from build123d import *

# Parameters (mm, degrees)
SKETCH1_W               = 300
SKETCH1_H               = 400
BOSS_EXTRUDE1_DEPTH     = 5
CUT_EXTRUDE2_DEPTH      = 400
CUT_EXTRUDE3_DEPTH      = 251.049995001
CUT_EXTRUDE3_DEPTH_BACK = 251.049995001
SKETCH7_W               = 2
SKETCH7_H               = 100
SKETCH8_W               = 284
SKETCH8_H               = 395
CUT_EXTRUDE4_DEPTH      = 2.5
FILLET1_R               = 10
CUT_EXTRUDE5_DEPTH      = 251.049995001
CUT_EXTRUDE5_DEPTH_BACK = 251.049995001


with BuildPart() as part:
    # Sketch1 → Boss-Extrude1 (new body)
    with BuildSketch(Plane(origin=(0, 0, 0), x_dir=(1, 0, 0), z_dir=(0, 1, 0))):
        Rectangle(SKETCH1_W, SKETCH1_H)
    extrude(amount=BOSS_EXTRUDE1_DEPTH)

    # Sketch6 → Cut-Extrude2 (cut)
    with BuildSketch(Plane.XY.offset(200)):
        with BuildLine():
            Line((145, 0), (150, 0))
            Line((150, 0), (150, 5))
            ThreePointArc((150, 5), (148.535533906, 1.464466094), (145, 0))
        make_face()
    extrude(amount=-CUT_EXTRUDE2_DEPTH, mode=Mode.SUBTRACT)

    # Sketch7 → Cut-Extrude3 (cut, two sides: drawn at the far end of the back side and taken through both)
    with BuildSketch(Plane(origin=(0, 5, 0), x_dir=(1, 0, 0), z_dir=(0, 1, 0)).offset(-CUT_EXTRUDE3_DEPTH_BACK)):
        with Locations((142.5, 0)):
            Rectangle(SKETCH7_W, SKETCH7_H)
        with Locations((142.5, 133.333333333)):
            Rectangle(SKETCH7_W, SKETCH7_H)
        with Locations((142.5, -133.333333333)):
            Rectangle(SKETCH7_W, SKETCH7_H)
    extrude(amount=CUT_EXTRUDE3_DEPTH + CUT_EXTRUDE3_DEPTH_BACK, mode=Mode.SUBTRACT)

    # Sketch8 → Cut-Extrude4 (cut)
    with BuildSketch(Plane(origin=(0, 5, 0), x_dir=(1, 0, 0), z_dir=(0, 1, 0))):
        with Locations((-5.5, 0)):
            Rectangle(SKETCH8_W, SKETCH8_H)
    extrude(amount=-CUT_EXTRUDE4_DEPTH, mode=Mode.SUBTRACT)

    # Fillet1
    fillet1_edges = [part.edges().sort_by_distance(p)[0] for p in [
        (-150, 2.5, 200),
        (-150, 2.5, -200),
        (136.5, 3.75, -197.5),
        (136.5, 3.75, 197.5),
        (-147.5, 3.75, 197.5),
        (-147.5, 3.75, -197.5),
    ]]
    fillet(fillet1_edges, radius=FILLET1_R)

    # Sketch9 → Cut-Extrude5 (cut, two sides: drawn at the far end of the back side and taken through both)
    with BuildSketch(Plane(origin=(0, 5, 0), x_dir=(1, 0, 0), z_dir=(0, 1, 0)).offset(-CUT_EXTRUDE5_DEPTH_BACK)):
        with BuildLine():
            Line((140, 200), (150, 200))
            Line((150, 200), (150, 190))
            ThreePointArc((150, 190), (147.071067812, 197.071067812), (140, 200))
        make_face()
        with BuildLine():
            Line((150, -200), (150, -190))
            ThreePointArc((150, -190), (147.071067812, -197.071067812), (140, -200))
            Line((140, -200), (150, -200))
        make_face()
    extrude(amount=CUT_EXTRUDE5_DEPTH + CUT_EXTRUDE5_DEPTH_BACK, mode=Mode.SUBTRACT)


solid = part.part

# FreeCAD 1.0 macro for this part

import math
import FreeCAD as App
import Part
import Sketcher

V = App.Vector


def edges_at(feature, points):
    """Names of the edges that pass closest to the given points."""
    edges = feature.Shape.Edges
    near = lambda p: min(range(len(edges)), key=lambda i: edges[i].distToShape(Part.Vertex(*p))[0])
    return sorted({f"Edge{near(p) + 1}" for p in points})

doc = App.newDocument("Part")
params = doc.addObject("Spreadsheet::Sheet", "Params")
for row, (alias, value) in enumerate([
    ("sketch1_width", "300 mm"),
    ("sketch1_height", "400 mm"),
    ("pad1_length", "5 mm"),
    ("sketch2_radius", "5 mm"),
    ("pocket1_length", "400 mm"),
    ("sketch3_width", "2 mm"),
    ("sketch3_height", "100 mm"),
    ("sketch4_width", "284 mm"),
    ("sketch4_height", "395 mm"),
    ("pocket3_length", "2.5 mm"),
    ("fillet_radius", "10 mm"),
    ("sketch5_radius", "10 mm"),
], start=1):
    params.set(f"A{row}", alias)
    params.set(f"B{row}", "=" + value)
    params.setAlias(f"B{row}", alias)

body = doc.addObject("PartDesign::Body", "Body")

# Sketch on XZ plane
sketch1 = body.newObject("Sketcher::SketchObject", "Sketch")
sketch1.AttachmentSupport = (doc.getObject("XZ_Plane"), [""])
sketch1.MapMode = "FlatFace"
sketch1.addGeometry(Part.LineSegment(V(-150, -200, 0), V(-150, 200, 0)), False)
sketch1.addGeometry(Part.LineSegment(V(-150, 200, 0), V(150, 200, 0)), False)
sketch1.addGeometry(Part.LineSegment(V(150, 200, 0), V(150, -200, 0)), False)
sketch1.addGeometry(Part.LineSegment(V(150, -200, 0), V(-150, -200, 0)), False)
sketch1.addConstraint(Sketcher.Constraint("Coincident", 0, 2, 1, 1))
sketch1.addConstraint(Sketcher.Constraint("Coincident", 1, 2, 2, 1))
sketch1.addConstraint(Sketcher.Constraint("Coincident", 2, 2, 3, 1))
sketch1.addConstraint(Sketcher.Constraint("Coincident", 3, 2, 0, 1))
sketch1.addConstraint(Sketcher.Constraint("Vertical", 0))
sketch1.addConstraint(Sketcher.Constraint("Horizontal", 1))
sketch1.addConstraint(Sketcher.Constraint("Vertical", 2))
sketch1.addConstraint(Sketcher.Constraint("Horizontal", 3))
sketch1.addConstraint(Sketcher.Constraint("Symmetric", 0, 2, 2, 2, -1, 1))
sketch1.addConstraint(Sketcher.Constraint("DistanceX", 1, 1, 1, 2, 300.0))
sketch1.addConstraint(Sketcher.Constraint("DistanceY", 0, 1, 0, 2, 400.0))
sketch1.setExpression("Constraints[9]", "Params.sketch1_width")
sketch1.setExpression("Constraints[10]", "Params.sketch1_height")
pad1 = body.newObject("PartDesign::Pad", "Pad")
pad1.Profile = sketch1
pad1.setExpression("Length", "Params.pad1_length")
pad1.Reversed = True

# Sketch on XY plane
sketch2 = body.newObject("Sketcher::SketchObject", "Sketch001")
sketch2.AttachmentSupport = (doc.getObject("XY_Plane"), [""])
sketch2.MapMode = "FlatFace"
sketch2.AttachmentOffset = App.Placement(V(0, 0, 200), App.Rotation())
sketch2.addGeometry(Part.LineSegment(V(145, 0, 0), V(150, 0, 0)), False)
sketch2.addGeometry(Part.LineSegment(V(150, 0, 0), V(150, 5, 0)), False)
sketch2.addGeometry(Part.ArcOfCircle(Part.Circle(V(145, 5, 0), V(0, 0, 1), 5), math.radians(-90), math.radians(0)), False)
sketch2.addConstraint(Sketcher.Constraint("Coincident", 0, 2, 1, 1))
sketch2.addConstraint(Sketcher.Constraint("Tangent", 1, 2, 2, 2))
sketch2.addConstraint(Sketcher.Constraint("Tangent", 2, 1, 0, 1))
sketch2.addConstraint(Sketcher.Constraint("Horizontal", 0))
sketch2.addConstraint(Sketcher.Constraint("Vertical", 1))
sketch2.addConstraint(Sketcher.Constraint("PointOnObject", 0, 2, -1))
sketch2.addConstraint(Sketcher.Constraint("Radius", 2, 5.0))
sketch2.addConstraint(Sketcher.Constraint("DistanceX", -1, 1, 2, 3, 145.0))
sketch2.setExpression("Constraints[6]", "Params.sketch2_radius")
pocket1 = body.newObject("PartDesign::Pocket", "Pocket")
pocket1.Profile = sketch2
pocket1.setExpression("Length", "Params.pocket1_length")

# Sketch on XZ plane
sketch3 = body.newObject("Sketcher::SketchObject", "Sketch002")
sketch3.AttachmentSupport = (doc.getObject("XZ_Plane"), [""])
sketch3.MapMode = "FlatFace"
sketch3.AttachmentOffset = App.Placement(V(0, 0, -5), App.Rotation())
sketch3.addGeometry(Part.LineSegment(V(141.5, -50, 0), V(141.5, 50, 0)), False)
sketch3.addGeometry(Part.LineSegment(V(141.5, 50, 0), V(143.5, 50, 0)), False)
sketch3.addGeometry(Part.LineSegment(V(143.5, 50, 0), V(143.5, -50, 0)), False)
sketch3.addGeometry(Part.LineSegment(V(143.5, -50, 0), V(141.5, -50, 0)), False)
sketch3.addGeometry(Part.LineSegment(V(141.5, -183.333333, 0), V(141.5, -83.333333, 0)), False)
sketch3.addGeometry(Part.LineSegment(V(141.5, -83.333333, 0), V(143.5, -83.333333, 0)), False)
sketch3.addGeometry(Part.LineSegment(V(143.5, -83.333333, 0), V(143.5, -183.333333, 0)), False)
sketch3.addGeometry(Part.LineSegment(V(143.5, -183.333333, 0), V(141.5, -183.333333, 0)), False)
sketch3.addGeometry(Part.LineSegment(V(141.5, 83.333333, 0), V(141.5, 183.333333, 0)), False)
sketch3.addGeometry(Part.LineSegment(V(141.5, 183.333333, 0), V(143.5, 183.333333, 0)), False)
sketch3.addGeometry(Part.LineSegment(V(143.5, 183.333333, 0), V(143.5, 83.333333, 0)), False)
sketch3.addGeometry(Part.LineSegment(V(143.5, 83.333333, 0), V(141.5, 83.333333, 0)), False)
sketch3.addConstraint(Sketcher.Constraint("Coincident", 0, 2, 1, 1))
sketch3.addConstraint(Sketcher.Constraint("Coincident", 1, 2, 2, 1))
sketch3.addConstraint(Sketcher.Constraint("Coincident", 2, 2, 3, 1))
sketch3.addConstraint(Sketcher.Constraint("Coincident", 3, 2, 0, 1))
sketch3.addConstraint(Sketcher.Constraint("Coincident", 4, 2, 5, 1))
sketch3.addConstraint(Sketcher.Constraint("Coincident", 5, 2, 6, 1))
sketch3.addConstraint(Sketcher.Constraint("Coincident", 6, 2, 7, 1))
sketch3.addConstraint(Sketcher.Constraint("Coincident", 7, 2, 4, 1))
sketch3.addConstraint(Sketcher.Constraint("Coincident", 8, 2, 9, 1))
sketch3.addConstraint(Sketcher.Constraint("Coincident", 9, 2, 10, 1))
sketch3.addConstraint(Sketcher.Constraint("Coincident", 10, 2, 11, 1))
sketch3.addConstraint(Sketcher.Constraint("Coincident", 11, 2, 8, 1))
sketch3.addConstraint(Sketcher.Constraint("Vertical", 0))
sketch3.addConstraint(Sketcher.Constraint("Horizontal", 1))
sketch3.addConstraint(Sketcher.Constraint("Vertical", 2))
sketch3.addConstraint(Sketcher.Constraint("Horizontal", 3))
sketch3.addConstraint(Sketcher.Constraint("Vertical", 4))
sketch3.addConstraint(Sketcher.Constraint("Horizontal", 5))
sketch3.addConstraint(Sketcher.Constraint("Vertical", 6))
sketch3.addConstraint(Sketcher.Constraint("Horizontal", 7))
sketch3.addConstraint(Sketcher.Constraint("Vertical", 8))
sketch3.addConstraint(Sketcher.Constraint("Horizontal", 9))
sketch3.addConstraint(Sketcher.Constraint("Vertical", 10))
sketch3.addConstraint(Sketcher.Constraint("Horizontal", 11))
sketch3.addConstraint(Sketcher.Constraint("Symmetric", 7, 2, 8, 2, -1))
sketch3.addConstraint(Sketcher.Constraint("Symmetric", 5, 2, 10, 2, -1))
sketch3.addConstraint(Sketcher.Constraint("Vertical", 3, 2, 4, 2))
sketch3.addConstraint(Sketcher.Constraint("Vertical", 2, 2, 5, 2))
sketch3.addConstraint(Sketcher.Constraint("Equal", 2, 4))
sketch3.addConstraint(Sketcher.Constraint("DistanceX", 1, 1, 1, 2, 2.0))
sketch3.addConstraint(Sketcher.Constraint("DistanceY", 0, 1, 0, 2, 100.0))
sketch3.addConstraint(Sketcher.Constraint("DistanceY", -1, 1, 0, 2, 50.0))
sketch3.addConstraint(Sketcher.Constraint("DistanceX", -1, 1, 0, 2, 141.5))
sketch3.addConstraint(Sketcher.Constraint("DistanceY", 4, 2, -1, 1, 83.333333))
sketch3.setExpression("Constraints[29]", "Params.sketch3_width")
sketch3.setExpression("Constraints[30]", "Params.sketch3_height")
pocket2 = body.newObject("PartDesign::Pocket", "Pocket001")
pocket2.Profile = sketch3
pocket2.Type = "ThroughAll"
pocket2.Midplane = True

# Sketch on XZ plane
sketch4 = body.newObject("Sketcher::SketchObject", "Sketch003")
sketch4.AttachmentSupport = (doc.getObject("XZ_Plane"), [""])
sketch4.MapMode = "FlatFace"
sketch4.AttachmentOffset = App.Placement(V(0, 0, -5), App.Rotation())
sketch4.addGeometry(Part.LineSegment(V(-147.5, -197.5, 0), V(-147.5, 197.5, 0)), False)
sketch4.addGeometry(Part.LineSegment(V(-147.5, 197.5, 0), V(136.5, 197.5, 0)), False)
sketch4.addGeometry(Part.LineSegment(V(136.5, 197.5, 0), V(136.5, -197.5, 0)), False)
sketch4.addGeometry(Part.LineSegment(V(136.5, -197.5, 0), V(-147.5, -197.5, 0)), False)
sketch4.addConstraint(Sketcher.Constraint("Coincident", 0, 2, 1, 1))
sketch4.addConstraint(Sketcher.Constraint("Coincident", 1, 2, 2, 1))
sketch4.addConstraint(Sketcher.Constraint("Coincident", 2, 2, 3, 1))
sketch4.addConstraint(Sketcher.Constraint("Coincident", 3, 2, 0, 1))
sketch4.addConstraint(Sketcher.Constraint("Vertical", 0))
sketch4.addConstraint(Sketcher.Constraint("Horizontal", 1))
sketch4.addConstraint(Sketcher.Constraint("Vertical", 2))
sketch4.addConstraint(Sketcher.Constraint("Horizontal", 3))
sketch4.addConstraint(Sketcher.Constraint("DistanceX", 1, 1, 1, 2, 284.0))
sketch4.addConstraint(Sketcher.Constraint("DistanceY", 0, 1, 0, 2, 395.0))
sketch4.addConstraint(Sketcher.Constraint("DistanceX", 0, 2, -1, 1, 147.5))
sketch4.addConstraint(Sketcher.Constraint("DistanceY", -1, 1, 0, 2, 197.5))
sketch4.setExpression("Constraints[8]", "Params.sketch4_width")
sketch4.setExpression("Constraints[9]", "Params.sketch4_height")
pocket3 = body.newObject("PartDesign::Pocket", "Pocket002")
pocket3.Profile = sketch4
pocket3.setExpression("Length", "Params.pocket3_length")
pocket3.Reversed = True
doc.recompute()

fillet = body.newObject("PartDesign::Fillet", "Fillet")
fillet.Base = (pocket3, edges_at(pocket3, [
    (-150, 2.5, 200),
    (-150, 2.5, -200),
    (136.5, 3.75, -197.5),
    (136.5, 3.75, 197.5),
    (-147.5, 3.75, 197.5),
    (-147.5, 3.75, -197.5),
]))
fillet.setExpression("Radius", "Params.fillet_radius")

# Sketch on XZ plane
sketch5 = body.newObject("Sketcher::SketchObject", "Sketch004")
sketch5.AttachmentSupport = (doc.getObject("XZ_Plane"), [""])
sketch5.MapMode = "FlatFace"
sketch5.AttachmentOffset = App.Placement(V(0, 0, -5), App.Rotation())
sketch5.addGeometry(Part.LineSegment(V(150, -200, 0), V(140, -200, 0)), False)
sketch5.addGeometry(Part.ArcOfCircle(Part.Circle(V(140, -190, 0), V(0, 0, 1), 10), math.radians(-90), math.radians(0)), False)
sketch5.addGeometry(Part.LineSegment(V(150, -190, 0), V(150, -200, 0)), False)
sketch5.addGeometry(Part.LineSegment(V(150, 200, 0), V(150, 190, 0)), False)
sketch5.addGeometry(Part.ArcOfCircle(Part.Circle(V(140, 190, 0), V(0, 0, 1), 10), math.radians(0), math.radians(90)), False)
sketch5.addGeometry(Part.LineSegment(V(140, 200, 0), V(150, 200, 0)), False)
sketch5.addConstraint(Sketcher.Constraint("Tangent", 0, 2, 1, 1))
sketch5.addConstraint(Sketcher.Constraint("Tangent", 1, 2, 2, 1))
sketch5.addConstraint(Sketcher.Constraint("Coincident", 2, 2, 0, 1))
sketch5.addConstraint(Sketcher.Constraint("Tangent", 3, 2, 4, 1))
sketch5.addConstraint(Sketcher.Constraint("Tangent", 4, 2, 5, 1))
sketch5.addConstraint(Sketcher.Constraint("Coincident", 5, 2, 3, 1))
sketch5.addConstraint(Sketcher.Constraint("Horizontal", 0))
sketch5.addConstraint(Sketcher.Constraint("Vertical", 2))
sketch5.addConstraint(Sketcher.Constraint("Vertical", 3))
sketch5.addConstraint(Sketcher.Constraint("Horizontal", 5))
sketch5.addConstraint(Sketcher.Constraint("Equal", 1, 4))
sketch5.addConstraint(Sketcher.Constraint("Symmetric", 1, 3, 4, 3, -1))
sketch5.addConstraint(Sketcher.Constraint("Radius", 1, 10.0))
sketch5.addConstraint(Sketcher.Constraint("DistanceX", -1, 1, 1, 3, 140.0))
sketch5.addConstraint(Sketcher.Constraint("DistanceY", 1, 3, -1, 1, 190.0))
sketch5.setExpression("Constraints[12]", "Params.sketch5_radius")
pocket4 = body.newObject("PartDesign::Pocket", "Pocket003")
pocket4.Profile = sketch5
pocket4.Type = "ThroughAll"
pocket4.Midplane = True

doc.recompute()
